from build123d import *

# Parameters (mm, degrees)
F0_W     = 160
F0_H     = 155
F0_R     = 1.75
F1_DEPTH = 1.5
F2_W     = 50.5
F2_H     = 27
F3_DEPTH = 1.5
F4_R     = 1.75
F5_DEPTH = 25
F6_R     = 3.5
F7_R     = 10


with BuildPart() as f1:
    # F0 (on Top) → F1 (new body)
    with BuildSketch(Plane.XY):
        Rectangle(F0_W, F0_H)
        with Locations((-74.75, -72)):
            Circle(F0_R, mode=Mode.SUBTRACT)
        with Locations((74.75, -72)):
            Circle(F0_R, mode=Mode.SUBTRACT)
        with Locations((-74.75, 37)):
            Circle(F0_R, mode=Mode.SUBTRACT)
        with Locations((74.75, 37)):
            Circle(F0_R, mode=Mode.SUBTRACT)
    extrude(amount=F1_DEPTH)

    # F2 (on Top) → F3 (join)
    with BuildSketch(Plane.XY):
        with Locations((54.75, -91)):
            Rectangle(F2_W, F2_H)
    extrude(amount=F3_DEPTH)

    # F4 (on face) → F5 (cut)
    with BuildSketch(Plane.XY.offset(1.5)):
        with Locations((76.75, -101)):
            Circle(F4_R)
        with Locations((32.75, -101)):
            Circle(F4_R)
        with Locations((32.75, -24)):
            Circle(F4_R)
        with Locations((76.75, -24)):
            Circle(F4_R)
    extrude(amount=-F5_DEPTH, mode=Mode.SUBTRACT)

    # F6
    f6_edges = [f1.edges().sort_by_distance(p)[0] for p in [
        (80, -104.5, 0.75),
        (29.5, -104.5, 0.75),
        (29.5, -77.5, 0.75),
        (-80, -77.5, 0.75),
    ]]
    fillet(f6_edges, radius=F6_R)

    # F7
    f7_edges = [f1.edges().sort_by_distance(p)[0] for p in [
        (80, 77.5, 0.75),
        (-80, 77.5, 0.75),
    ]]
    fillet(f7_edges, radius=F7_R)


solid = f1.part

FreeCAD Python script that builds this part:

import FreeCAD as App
import Part
import Sketcher

V = App.Vector


def edges_at(feature, points):
    """Names of the edges that pass closest to the given points."""
    edges = feature.Shape.Edges
    near = lambda p: min(range(len(edges)), key=lambda i: edges[i].distToShape(Part.Vertex(*p))[0])
    return sorted({f"Edge{near(p) + 1}" for p in points})

doc = App.newDocument("Part")
body = doc.addObject("PartDesign::Body", "Body")

# Sketch on XY plane
sketch1 = body.newObject("Sketcher::SketchObject", "Sketch")
sketch1.AttachmentSupport = (doc.getObject("XY_Plane"), [""])
sketch1.MapMode = "FlatFace"
sketch1.addGeometry(Part.LineSegment(V(-80, 77.5, 0), V(-80, -77.5, 0)), False)
sketch1.addGeometry(Part.LineSegment(V(-80, -77.5, 0), V(80, -77.5, 0)), False)
sketch1.addGeometry(Part.LineSegment(V(80, -77.5, 0), V(80, 77.5, 0)), False)
sketch1.addGeometry(Part.LineSegment(V(80, 77.5, 0), V(-80, 77.5, 0)), False)
sketch1.addGeometry(Part.Circle(V(-74.8, -72, 0), V(0, 0, 1), 1.8), False)
sketch1.addGeometry(Part.Circle(V(74.8, -72, 0), V(0, 0, 1), 1.8), False)
sketch1.addGeometry(Part.Circle(V(-74.8, 37, 0), V(0, 0, 1), 1.8), False)
sketch1.addGeometry(Part.Circle(V(74.8, 37, 0), V(0, 0, 1), 1.8), False)
sketch1.addConstraint(Sketcher.Constraint("Coincident", 0, 2, 1, 1))
sketch1.addConstraint(Sketcher.Constraint("Coincident", 1, 2, 2, 1))
sketch1.addConstraint(Sketcher.Constraint("Coincident", 2, 2, 3, 1))
sketch1.addConstraint(Sketcher.Constraint("Coincident", 3, 2, 0, 1))
sketch1.addConstraint(Sketcher.Constraint("Vertical", 0))
sketch1.addConstraint(Sketcher.Constraint("Horizontal", 1))
sketch1.addConstraint(Sketcher.Constraint("Vertical", 2))
sketch1.addConstraint(Sketcher.Constraint("Horizontal", 3))
sketch1.addConstraint(Sketcher.Constraint("Equal", 4, 5))
sketch1.addConstraint(Sketcher.Constraint("Equal", 5, 6))
sketch1.addConstraint(Sketcher.Constraint("Equal", 6, 7))
sketch1.addConstraint(Sketcher.Constraint("Symmetric", 0, 2, 2, 2, -1, 1))
sketch1.addConstraint(Sketcher.Constraint("Symmetric", 4, 3, 5, 3, -2))
sketch1.addConstraint(Sketcher.Constraint("Symmetric", 6, 3, 7, 3, -2))
sketch1.addConstraint(Sketcher.Constraint("Vertical", 4, 3, 6, 3))
sketch1.addConstraint(Sketcher.Constraint("Diameter", 4, 3.5))
sketch1.addConstraint(Sketcher.Constraint("DistanceX", 1, 1, 1, 2, 160.0))
sketch1.addConstraint(Sketcher.Constraint("DistanceY", 0, 2, 0, 1, 155.0))
sketch1.addConstraint(Sketcher.Constraint("DistanceY", 4, 3, -1, 1, 72.0))
sketch1.addConstraint(Sketcher.Constraint("DistanceY", -1, 1, 6, 3, 37.0))
sketch1.addConstraint(Sketcher.Constraint("DistanceX", 4, 3, 5, 3, 149.5))
pad1 = body.newObject("PartDesign::Pad", "Pad")
pad1.Profile = sketch1
pad1.Length = 1.5

# Sketch on XY plane
sketch2 = body.newObject("Sketcher::SketchObject", "Sketch001")
sketch2.AttachmentSupport = (doc.getObject("XY_Plane"), [""])
sketch2.MapMode = "FlatFace"
sketch2.addGeometry(Part.LineSegment(V(30, -78, 0), V(30, -104, 0)), False)
sketch2.addGeometry(Part.LineSegment(V(30, -104, 0), V(80, -104, 0)), False)
sketch2.addGeometry(Part.LineSegment(V(80, -104, 0), V(80, -78, 0)), False)
sketch2.addGeometry(Part.LineSegment(V(80, -78, 0), V(30, -78, 0)), False)
sketch2.addConstraint(Sketcher.Constraint("Coincident", 0, 2, 1, 1))
sketch2.addConstraint(Sketcher.Constraint("Coincident", 1, 2, 2, 1))
sketch2.addConstraint(Sketcher.Constraint("Coincident", 2, 2, 3, 1))
sketch2.addConstraint(Sketcher.Constraint("Coincident", 3, 2, 0, 1))
sketch2.addConstraint(Sketcher.Constraint("Vertical", 0))
sketch2.addConstraint(Sketcher.Constraint("Horizontal", 1))
sketch2.addConstraint(Sketcher.Constraint("Vertical", 2))
sketch2.addConstraint(Sketcher.Constraint("Horizontal", 3))
sketch2.addConstraint(Sketcher.Constraint("DistanceY", 0, 2, 0, 1, 27.0))
sketch2.addConstraint(Sketcher.Constraint("DistanceX", 1, 1, 1, 2, 50.5))
sketch2.addConstraint(Sketcher.Constraint("DistanceX", -1, 1, 1, 2, 80.0))
sketch2.addConstraint(Sketcher.Constraint("DistanceY", 0, 2, -1, 1, 104.5))
pad2 = body.newObject("PartDesign::Pad", "Pad001")
pad2.Profile = sketch2
pad2.Length = 1.5

# Sketch on XY plane
sketch3 = body.newObject("Sketcher::SketchObject", "Sketch002")
sketch3.AttachmentSupport = (doc.getObject("XY_Plane"), [""])
sketch3.MapMode = "FlatFace"
sketch3.AttachmentOffset = App.Placement(V(0, 0, 1.5), App.Rotation())
sketch3.addGeometry(Part.Circle(V(76.8, -101, 0), V(0, 0, 1), 1.8), False)
sketch3.addGeometry(Part.Circle(V(32.8, -101, 0), V(0, 0, 1), 1.8), False)
sketch3.addGeometry(Part.Circle(V(32.8, -24, 0), V(0, 0, 1), 1.8), False)
sketch3.addGeometry(Part.Circle(V(76.8, -24, 0), V(0, 0, 1), 1.8), False)
sketch3.addConstraint(Sketcher.Constraint("Equal", 0, 1))
sketch3.addConstraint(Sketcher.Constraint("Equal", 1, 2))
sketch3.addConstraint(Sketcher.Constraint("Equal", 2, 3))
sketch3.addConstraint(Sketcher.Constraint("Horizontal", 0, 3, 1, 3))
sketch3.addConstraint(Sketcher.Constraint("Horizontal", 2, 3, 3, 3))
sketch3.addConstraint(Sketcher.Constraint("Vertical", 1, 3, 2, 3))
sketch3.addConstraint(Sketcher.Constraint("Vertical", 0, 3, 3, 3))
sketch3.addConstraint(Sketcher.Constraint("Diameter", 0, 3.5))
sketch3.addConstraint(Sketcher.Constraint("DistanceY", 0, 3, -1, 1, 101.0))
sketch3.addConstraint(Sketcher.Constraint("DistanceY", 2, 3, -1, 1, 24.0))
sketch3.addConstraint(Sketcher.Constraint("DistanceX", 1, 3, 0, 3, 44.0))
sketch3.addConstraint(Sketcher.Constraint("DistanceX", -1, 1, 0, 3, 76.75))
pocket1 = body.newObject("PartDesign::Pocket", "Pocket")
pocket1.Profile = sketch3
pocket1.Length = 25
doc.recompute()

fillet = body.newObject("PartDesign::Fillet", "Fillet")
fillet.Base = (pocket1, edges_at(pocket1, [
    (80, -104.5, 0.75),
    (29.5, -104.5, 0.75),
    (29.5, -77.5, 0.75),
    (-80, -77.5, 0.75),
]))
fillet.Radius = 3.5
doc.recompute()

fillet2 = body.newObject("PartDesign::Fillet", "Fillet001")
fillet2.Base = (fillet, edges_at(fillet, [(80, 77.5, 0.75), (-80, 77.5, 0.75)]))
fillet2.Radius = 10

doc.recompute()
